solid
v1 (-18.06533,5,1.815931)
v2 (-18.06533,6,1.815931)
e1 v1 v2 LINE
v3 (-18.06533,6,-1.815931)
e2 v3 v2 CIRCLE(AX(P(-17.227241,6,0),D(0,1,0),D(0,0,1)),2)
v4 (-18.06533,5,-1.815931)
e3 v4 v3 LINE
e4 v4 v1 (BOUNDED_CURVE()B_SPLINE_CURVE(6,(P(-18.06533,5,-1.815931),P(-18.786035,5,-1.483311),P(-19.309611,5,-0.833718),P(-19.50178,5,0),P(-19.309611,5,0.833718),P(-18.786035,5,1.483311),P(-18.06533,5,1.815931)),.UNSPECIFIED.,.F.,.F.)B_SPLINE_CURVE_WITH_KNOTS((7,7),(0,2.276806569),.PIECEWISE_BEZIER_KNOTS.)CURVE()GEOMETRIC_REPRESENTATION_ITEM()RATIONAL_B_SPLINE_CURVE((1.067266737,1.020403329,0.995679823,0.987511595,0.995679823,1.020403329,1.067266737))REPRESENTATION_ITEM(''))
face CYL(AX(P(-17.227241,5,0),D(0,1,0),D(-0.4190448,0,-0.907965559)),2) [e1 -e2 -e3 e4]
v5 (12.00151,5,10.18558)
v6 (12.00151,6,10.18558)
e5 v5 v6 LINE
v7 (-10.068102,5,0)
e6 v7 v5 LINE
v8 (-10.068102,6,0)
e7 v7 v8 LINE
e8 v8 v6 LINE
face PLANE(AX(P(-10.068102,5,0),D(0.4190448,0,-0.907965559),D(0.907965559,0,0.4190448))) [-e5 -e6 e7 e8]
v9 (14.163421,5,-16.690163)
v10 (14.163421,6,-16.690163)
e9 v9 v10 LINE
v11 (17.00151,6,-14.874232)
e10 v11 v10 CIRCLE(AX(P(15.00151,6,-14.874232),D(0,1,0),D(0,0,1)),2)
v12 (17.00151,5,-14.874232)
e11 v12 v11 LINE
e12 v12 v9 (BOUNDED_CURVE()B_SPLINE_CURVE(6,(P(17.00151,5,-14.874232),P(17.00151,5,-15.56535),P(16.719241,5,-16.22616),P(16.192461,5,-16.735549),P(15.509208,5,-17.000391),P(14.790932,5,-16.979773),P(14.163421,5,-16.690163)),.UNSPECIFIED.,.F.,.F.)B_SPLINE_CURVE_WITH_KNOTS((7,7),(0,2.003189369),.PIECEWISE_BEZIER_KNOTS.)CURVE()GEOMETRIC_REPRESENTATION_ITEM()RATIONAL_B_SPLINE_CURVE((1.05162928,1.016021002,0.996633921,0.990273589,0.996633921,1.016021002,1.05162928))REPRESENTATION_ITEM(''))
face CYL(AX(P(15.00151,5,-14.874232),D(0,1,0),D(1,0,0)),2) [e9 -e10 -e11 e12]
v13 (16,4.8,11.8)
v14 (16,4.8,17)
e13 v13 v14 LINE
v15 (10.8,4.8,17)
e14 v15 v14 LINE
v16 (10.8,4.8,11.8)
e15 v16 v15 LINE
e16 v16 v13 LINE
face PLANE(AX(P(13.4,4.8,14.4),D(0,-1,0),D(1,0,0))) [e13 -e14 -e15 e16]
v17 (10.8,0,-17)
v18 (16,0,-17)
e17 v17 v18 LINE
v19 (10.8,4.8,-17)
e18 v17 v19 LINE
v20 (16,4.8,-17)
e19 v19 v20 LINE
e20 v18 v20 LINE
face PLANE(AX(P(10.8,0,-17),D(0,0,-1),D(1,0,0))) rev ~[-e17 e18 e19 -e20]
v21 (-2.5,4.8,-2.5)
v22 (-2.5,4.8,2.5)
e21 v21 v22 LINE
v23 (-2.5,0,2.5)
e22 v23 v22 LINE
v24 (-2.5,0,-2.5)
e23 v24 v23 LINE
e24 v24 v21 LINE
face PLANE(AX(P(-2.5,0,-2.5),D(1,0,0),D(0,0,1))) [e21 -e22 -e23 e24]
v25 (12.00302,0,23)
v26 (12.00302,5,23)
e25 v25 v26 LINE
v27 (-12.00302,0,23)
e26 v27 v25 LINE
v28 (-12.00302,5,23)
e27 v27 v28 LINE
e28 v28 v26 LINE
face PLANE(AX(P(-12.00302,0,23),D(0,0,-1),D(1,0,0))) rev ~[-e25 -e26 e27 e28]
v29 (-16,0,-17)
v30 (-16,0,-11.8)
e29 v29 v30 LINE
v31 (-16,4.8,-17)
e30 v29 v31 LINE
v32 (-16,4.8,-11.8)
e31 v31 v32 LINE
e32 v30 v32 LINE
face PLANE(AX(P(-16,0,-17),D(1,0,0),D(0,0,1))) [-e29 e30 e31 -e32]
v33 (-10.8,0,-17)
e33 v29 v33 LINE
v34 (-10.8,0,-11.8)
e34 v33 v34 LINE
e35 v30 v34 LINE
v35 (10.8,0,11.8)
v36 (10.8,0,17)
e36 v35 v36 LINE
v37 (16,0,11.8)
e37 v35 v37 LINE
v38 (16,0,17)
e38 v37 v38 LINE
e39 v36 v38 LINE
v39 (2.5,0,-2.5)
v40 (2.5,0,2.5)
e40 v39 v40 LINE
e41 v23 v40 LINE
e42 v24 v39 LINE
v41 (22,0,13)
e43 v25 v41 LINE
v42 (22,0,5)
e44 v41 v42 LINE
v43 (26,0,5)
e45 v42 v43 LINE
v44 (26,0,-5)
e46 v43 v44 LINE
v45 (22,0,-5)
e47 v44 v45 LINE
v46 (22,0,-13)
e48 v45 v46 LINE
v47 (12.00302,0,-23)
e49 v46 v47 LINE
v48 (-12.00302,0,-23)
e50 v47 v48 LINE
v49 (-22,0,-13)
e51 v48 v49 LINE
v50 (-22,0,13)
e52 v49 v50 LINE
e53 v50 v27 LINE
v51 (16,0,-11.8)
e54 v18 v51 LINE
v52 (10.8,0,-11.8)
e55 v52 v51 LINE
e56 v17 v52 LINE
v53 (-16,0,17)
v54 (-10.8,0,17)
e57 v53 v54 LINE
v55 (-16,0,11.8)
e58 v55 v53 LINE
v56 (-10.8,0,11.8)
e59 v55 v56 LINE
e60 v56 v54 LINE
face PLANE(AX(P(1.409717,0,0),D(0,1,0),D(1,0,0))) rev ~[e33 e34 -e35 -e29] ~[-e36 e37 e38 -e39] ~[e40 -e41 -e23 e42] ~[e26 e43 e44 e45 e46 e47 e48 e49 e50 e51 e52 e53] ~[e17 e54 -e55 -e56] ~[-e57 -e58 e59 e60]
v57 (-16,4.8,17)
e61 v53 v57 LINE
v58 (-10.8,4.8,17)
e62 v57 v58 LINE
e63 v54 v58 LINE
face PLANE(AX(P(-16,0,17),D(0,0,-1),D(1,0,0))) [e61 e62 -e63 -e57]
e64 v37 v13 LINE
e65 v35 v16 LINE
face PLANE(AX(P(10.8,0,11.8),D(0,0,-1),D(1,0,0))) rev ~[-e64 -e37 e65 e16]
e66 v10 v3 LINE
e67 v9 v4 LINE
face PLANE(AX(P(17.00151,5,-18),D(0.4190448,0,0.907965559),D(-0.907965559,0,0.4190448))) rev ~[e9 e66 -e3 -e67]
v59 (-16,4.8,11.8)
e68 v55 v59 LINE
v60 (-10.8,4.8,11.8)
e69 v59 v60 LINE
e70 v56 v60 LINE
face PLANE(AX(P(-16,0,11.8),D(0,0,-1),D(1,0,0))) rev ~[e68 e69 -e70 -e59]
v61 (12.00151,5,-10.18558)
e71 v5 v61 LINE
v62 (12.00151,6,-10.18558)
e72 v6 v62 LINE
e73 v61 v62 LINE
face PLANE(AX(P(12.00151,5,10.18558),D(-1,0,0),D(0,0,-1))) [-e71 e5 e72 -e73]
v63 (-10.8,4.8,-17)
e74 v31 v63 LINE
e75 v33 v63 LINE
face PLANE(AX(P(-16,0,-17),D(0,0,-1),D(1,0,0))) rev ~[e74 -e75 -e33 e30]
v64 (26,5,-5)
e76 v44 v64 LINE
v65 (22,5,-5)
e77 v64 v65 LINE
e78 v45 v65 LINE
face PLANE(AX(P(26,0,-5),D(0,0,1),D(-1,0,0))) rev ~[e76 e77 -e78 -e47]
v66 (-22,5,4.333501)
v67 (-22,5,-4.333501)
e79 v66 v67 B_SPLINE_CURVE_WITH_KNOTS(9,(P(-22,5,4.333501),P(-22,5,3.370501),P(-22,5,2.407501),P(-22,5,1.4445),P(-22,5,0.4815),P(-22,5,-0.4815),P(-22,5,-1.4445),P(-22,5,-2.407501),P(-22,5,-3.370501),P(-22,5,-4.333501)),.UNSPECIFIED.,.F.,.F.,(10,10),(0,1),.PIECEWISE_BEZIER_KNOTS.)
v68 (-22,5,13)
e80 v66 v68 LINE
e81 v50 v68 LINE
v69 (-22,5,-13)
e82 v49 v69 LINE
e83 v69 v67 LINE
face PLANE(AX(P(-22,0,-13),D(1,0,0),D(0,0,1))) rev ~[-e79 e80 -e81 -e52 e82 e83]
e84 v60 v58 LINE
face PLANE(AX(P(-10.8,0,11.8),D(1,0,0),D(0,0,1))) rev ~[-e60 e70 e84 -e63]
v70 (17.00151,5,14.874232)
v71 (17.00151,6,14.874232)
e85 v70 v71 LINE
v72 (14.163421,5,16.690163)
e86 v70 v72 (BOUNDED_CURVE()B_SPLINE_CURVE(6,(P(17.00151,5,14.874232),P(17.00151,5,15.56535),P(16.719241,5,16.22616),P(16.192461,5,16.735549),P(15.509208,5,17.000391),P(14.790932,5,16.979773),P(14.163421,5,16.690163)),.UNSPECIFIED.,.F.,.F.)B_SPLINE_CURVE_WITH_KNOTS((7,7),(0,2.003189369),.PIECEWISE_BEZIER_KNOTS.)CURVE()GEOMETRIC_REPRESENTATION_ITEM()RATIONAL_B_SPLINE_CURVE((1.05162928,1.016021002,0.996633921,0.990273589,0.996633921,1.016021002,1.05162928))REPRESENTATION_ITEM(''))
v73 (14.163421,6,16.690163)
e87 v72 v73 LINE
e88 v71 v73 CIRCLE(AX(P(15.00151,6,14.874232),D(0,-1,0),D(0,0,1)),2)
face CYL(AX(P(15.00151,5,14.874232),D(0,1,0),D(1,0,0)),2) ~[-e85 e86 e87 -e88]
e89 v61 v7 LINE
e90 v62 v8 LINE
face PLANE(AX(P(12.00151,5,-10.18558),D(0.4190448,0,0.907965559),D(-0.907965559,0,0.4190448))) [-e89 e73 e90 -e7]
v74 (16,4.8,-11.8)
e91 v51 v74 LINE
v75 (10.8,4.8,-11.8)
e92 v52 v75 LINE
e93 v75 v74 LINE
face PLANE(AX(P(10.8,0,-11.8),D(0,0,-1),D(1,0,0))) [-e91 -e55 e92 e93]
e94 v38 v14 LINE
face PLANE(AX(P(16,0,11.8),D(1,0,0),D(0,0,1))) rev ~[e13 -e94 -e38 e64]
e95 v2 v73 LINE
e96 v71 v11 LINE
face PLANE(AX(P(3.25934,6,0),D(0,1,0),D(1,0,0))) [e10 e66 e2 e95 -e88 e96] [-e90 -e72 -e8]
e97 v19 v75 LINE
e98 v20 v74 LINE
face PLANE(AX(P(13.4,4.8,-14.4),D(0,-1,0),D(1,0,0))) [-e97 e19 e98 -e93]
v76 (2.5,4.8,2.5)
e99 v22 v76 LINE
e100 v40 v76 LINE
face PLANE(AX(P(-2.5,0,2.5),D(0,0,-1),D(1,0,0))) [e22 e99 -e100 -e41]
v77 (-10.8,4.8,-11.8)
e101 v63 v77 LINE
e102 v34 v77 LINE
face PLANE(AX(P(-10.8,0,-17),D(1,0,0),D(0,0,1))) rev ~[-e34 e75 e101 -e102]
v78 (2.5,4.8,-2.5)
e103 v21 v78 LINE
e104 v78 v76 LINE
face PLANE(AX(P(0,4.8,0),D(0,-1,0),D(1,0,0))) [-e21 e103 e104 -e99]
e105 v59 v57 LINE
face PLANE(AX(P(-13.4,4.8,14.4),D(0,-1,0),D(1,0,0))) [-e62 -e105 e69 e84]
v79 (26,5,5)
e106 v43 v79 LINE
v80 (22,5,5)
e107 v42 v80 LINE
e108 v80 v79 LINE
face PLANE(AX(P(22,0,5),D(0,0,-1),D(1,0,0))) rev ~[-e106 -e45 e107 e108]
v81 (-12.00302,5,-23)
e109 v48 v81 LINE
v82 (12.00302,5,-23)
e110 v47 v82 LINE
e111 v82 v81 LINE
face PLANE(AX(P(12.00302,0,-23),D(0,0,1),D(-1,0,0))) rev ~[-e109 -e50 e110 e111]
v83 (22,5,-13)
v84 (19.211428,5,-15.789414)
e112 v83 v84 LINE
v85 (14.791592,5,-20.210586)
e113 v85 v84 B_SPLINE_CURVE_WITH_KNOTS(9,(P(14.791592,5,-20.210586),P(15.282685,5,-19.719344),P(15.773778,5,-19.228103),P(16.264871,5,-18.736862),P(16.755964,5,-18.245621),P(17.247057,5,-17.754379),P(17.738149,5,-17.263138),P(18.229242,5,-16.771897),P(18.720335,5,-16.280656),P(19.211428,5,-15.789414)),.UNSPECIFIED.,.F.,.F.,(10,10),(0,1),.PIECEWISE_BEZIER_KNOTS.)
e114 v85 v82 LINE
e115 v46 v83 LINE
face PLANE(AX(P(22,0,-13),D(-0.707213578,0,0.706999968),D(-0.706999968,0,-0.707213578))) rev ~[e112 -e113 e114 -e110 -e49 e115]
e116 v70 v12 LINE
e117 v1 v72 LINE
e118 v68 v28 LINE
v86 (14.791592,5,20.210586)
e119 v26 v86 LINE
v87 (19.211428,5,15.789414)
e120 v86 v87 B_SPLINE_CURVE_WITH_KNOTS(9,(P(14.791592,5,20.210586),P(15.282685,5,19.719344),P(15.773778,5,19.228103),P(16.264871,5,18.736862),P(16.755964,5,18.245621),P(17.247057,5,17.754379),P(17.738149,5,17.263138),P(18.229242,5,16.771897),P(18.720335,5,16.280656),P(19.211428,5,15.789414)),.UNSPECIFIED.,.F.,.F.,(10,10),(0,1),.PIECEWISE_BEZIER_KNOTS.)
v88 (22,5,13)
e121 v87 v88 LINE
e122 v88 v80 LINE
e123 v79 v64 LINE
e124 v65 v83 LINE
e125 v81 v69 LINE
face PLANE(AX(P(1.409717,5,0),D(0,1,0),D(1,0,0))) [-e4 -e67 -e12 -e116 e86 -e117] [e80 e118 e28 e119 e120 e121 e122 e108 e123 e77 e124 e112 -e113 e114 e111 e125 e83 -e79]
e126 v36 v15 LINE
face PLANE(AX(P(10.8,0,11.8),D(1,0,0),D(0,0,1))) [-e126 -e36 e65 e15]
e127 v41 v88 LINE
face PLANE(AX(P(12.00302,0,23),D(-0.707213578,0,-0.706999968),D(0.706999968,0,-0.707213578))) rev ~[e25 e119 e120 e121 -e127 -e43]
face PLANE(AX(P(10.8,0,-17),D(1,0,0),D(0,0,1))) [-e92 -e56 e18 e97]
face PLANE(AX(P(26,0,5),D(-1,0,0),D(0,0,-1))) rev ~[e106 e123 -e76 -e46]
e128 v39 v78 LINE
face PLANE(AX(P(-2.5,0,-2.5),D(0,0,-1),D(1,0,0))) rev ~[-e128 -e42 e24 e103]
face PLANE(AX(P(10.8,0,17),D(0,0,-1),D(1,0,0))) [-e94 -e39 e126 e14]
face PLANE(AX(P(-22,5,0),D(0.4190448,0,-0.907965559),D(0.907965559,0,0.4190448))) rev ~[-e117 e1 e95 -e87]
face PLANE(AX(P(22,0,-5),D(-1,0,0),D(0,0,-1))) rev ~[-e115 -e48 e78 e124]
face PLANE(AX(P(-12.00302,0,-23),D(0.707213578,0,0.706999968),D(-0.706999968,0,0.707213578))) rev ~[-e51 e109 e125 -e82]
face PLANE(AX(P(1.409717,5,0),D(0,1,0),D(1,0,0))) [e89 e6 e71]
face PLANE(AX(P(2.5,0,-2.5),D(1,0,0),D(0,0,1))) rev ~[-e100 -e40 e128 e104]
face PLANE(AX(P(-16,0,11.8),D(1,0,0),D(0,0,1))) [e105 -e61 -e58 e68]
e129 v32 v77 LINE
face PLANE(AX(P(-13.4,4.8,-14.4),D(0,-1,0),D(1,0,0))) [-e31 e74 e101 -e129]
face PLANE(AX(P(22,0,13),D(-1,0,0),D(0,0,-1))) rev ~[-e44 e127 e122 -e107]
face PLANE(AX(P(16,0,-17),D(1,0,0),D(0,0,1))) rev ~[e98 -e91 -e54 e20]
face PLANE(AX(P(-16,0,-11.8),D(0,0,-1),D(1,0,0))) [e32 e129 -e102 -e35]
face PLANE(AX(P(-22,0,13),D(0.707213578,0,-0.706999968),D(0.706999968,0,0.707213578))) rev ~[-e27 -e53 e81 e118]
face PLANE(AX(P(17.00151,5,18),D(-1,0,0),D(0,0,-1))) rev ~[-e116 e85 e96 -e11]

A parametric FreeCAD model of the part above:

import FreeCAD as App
import Part
import Sketcher


def edges_at(feature, points):
    """Names of the edges that pass closest to the given points."""
    edges = feature.Shape.Edges
    near = lambda p: min(range(len(edges)), key=lambda i: edges[i].distToShape(Part.Vertex(*p))[0])
    return sorted({f"Edge{near(p) + 1}" for p in points})

doc = App.newDocument("Part")
params = doc.addObject("Spreadsheet::Sheet", "Params")
for row, (alias, value) in enumerate([
    ("sketch1_width", "4 mm"),
    ("sketch1_height", "26 mm"),
    ("sketch1_height2", "8 mm"),
    ("sketch1_length", "14.14 mm"),
    ("pad1_length", "5 mm"),
    ("sketch2_height", "36 mm"),
    ("pad2_length", "1 mm"),
    ("sketch3_width", "5 mm"),
    ("sketch3_width2", "5.2 mm"),
    ("pocket1_length", "4.8 mm"),
    ("fillet_radius", "2 mm"),
], start=1):
    params.set(f"A{row}", alias)
    params.set(f"B{row}", "=" + value)
    params.setAlias(f"B{row}", alias)

body = doc.addObject("PartDesign::Body", "Body")

sketch1 = doc.addObject("Sketcher::SketchObject", "Sketch")
body.addObject(sketch1)
sketch1.AttachmentSupport = (doc.XZ_Plane, [""])
sketch1.MapMode = "FlatFace"
sketch1.addGeometry([
    Part.LineSegment(App.Vector(22, -13, 0), App.Vector(12, -23, 0)),
    Part.LineSegment(App.Vector(12, -23, 0), App.Vector(-12, -23, 0)),
    Part.LineSegment(App.Vector(-12, -23, 0), App.Vector(-22, -13, 0)),
    Part.LineSegment(App.Vector(-22, -13, 0), App.Vector(-22, 13, 0)),
    Part.LineSegment(App.Vector(-22, 13, 0), App.Vector(-12, 23, 0)),
    Part.LineSegment(App.Vector(-12, 23, 0), App.Vector(12, 23, 0)),
    Part.LineSegment(App.Vector(12, 23, 0), App.Vector(22, 13, 0)),
    Part.LineSegment(App.Vector(22, 13, 0), App.Vector(22, 5, 0)),
    Part.LineSegment(App.Vector(22, 5, 0), App.Vector(26, 5, 0)),
    Part.LineSegment(App.Vector(26, 5, 0), App.Vector(26, -5, 0)),
    Part.LineSegment(App.Vector(26, -5, 0), App.Vector(22, -5, 0)),
    Part.LineSegment(App.Vector(22, -5, 0), App.Vector(22, -13, 0)),
], False)
sketch1.addConstraint([
    Sketcher.Constraint("Coincident", 0, 2, 1, 1),
    Sketcher.Constraint("Coincident", 1, 2, 2, 1),
    Sketcher.Constraint("Coincident", 2, 2, 3, 1),
    Sketcher.Constraint("Coincident", 3, 2, 4, 1),
    Sketcher.Constraint("Coincident", 4, 2, 5, 1),
    Sketcher.Constraint("Coincident", 5, 2, 6, 1),
    Sketcher.Constraint("Coincident", 6, 2, 7, 1),
    Sketcher.Constraint("Coincident", 7, 2, 8, 1),
    Sketcher.Constraint("Coincident", 8, 2, 9, 1),
    Sketcher.Constraint("Coincident", 9, 2, 10, 1),
    Sketcher.Constraint("Coincident", 10, 2, 11, 1),
    Sketcher.Constraint("Coincident", 11, 2, 0, 1),
    Sketcher.Constraint("Horizontal", 1),
    Sketcher.Constraint("Vertical", 3),
    Sketcher.Constraint("Horizontal", 5),
    Sketcher.Constraint("Vertical", 7),
    Sketcher.Constraint("Horizontal", 8),
    Sketcher.Constraint("Vertical", 9),
    Sketcher.Constraint("Horizontal", 10),
    Sketcher.Constraint("Vertical", 11),
    Sketcher.Constraint("Symmetric", 0, 2, 4, 2, -1, 1),
    Sketcher.Constraint("Symmetric", 2, 2, 6, 2, -1, 1),
    Sketcher.Constraint("Symmetric", 3, 2, 11, 2, -1, 1),
    Sketcher.Constraint("Parallel", 2, 6),
    Sketcher.Constraint("Horizontal", 3, 2, 6, 2),
    Sketcher.Constraint("Vertical", 1, 2, 4, 2),
    Sketcher.Constraint("Equal", 7, 11),
    Sketcher.Constraint("DistanceX", 8, 1, 8, 2, 4.0),
    Sketcher.Constraint("DistanceY", 3, 1, 3, 2, 26.0),
    Sketcher.Constraint("DistanceY", 7, 2, 7, 1, 8.0),
    Sketcher.Constraint("DistanceY", 0, 2, -1, 1, 23.0),
    Sketcher.Constraint("DistanceX", 2, 2, -1, 1, 22.0),
    Sketcher.Constraint("Distance", 0, 14.14),
])
sketch1.setExpression("Constraints[27]", "Params.sketch1_width")
sketch1.setExpression("Constraints[28]", "Params.sketch1_height")
sketch1.setExpression("Constraints[29]", "Params.sketch1_height2")
sketch1.setExpression("Constraints[32]", "Params.sketch1_length")
pad1 = doc.addObject("PartDesign::Pad", "Pad")
body.addObject(pad1)
pad1.Profile = sketch1
pad1.setExpression("Length", "Params.pad1_length")
pad1.Reversed = True

sketch2 = doc.addObject("Sketcher::SketchObject", "Sketch001")
body.addObject(sketch2)
sketch2.AttachmentSupport = (doc.XZ_Plane, [""])
sketch2.MapMode = "FlatFace"
sketch2.AttachmentOffset = App.Placement(App.Vector(0, 0, -5), App.Rotation())
sketch2.addGeometry([
    Part.LineSegment(App.Vector(17, 18, 0), App.Vector(17, -18, 0)),
    Part.LineSegment(App.Vector(17, -18, 0), App.Vector(-22, 0, 0)),
    Part.LineSegment(App.Vector(-22, 0, 0), App.Vector(17, 18, 0)),
    Part.LineSegment(App.Vector(12, 10, 0), App.Vector(-10, 0, 0)),
    Part.LineSegment(App.Vector(-10, 0, 0), App.Vector(12, -10, 0)),
    Part.LineSegment(App.Vector(12, -10, 0), App.Vector(12, 10, 0)),
], False)
sketch2.addConstraint([
    Sketcher.Constraint("Coincident", 0, 2, 1, 1),
    Sketcher.Constraint("Coincident", 1, 2, 2, 1),
    Sketcher.Constraint("Coincident", 2, 2, 0, 1),
    Sketcher.Constraint("Coincident", 3, 2, 4, 1),
    Sketcher.Constraint("Coincident", 4, 2, 5, 1),
    Sketcher.Constraint("Coincident", 5, 2, 3, 1),
    Sketcher.Constraint("Vertical", 0),
    Sketcher.Constraint("Vertical", 5),
    Sketcher.Constraint("PointOnObject", 1, 2, -1),
    Sketcher.Constraint("PointOnObject", 3, 2, -1),
    Sketcher.Constraint("Parallel", 2, 3),
    Sketcher.Constraint("Parallel", 1, 4),
    Sketcher.Constraint("Equal", 1, 2),
    Sketcher.Constraint("DistanceY", 0, 2, 0, 1, 36.0),
    Sketcher.Constraint("DistanceX", 1, 2, -1, 1, 22.0),
    Sketcher.Constraint("DistanceX", 4, 2, 0, 2, 5.0),
    Sketcher.Constraint("DistanceY", 5, 1, 5, 2, 20.37116),
    Sketcher.Constraint("DistanceX", 3, 2, -1, 1, 10.068102),
])
sketch2.setExpression("Constraints[13]", "Params.sketch2_height")
pad2 = doc.addObject("PartDesign::Pad", "Pad001")
body.addObject(pad2)
pad2.Profile = sketch2
pad2.setExpression("Length", "Params.pad2_length")
pad2.Reversed = True

sketch3 = doc.addObject("Sketcher::SketchObject", "Sketch002")
body.addObject(sketch3)
sketch3.AttachmentSupport = (doc.XZ_Plane, [""])
sketch3.MapMode = "FlatFace"
sketch3.addGeometry([
    Part.LineSegment(App.Vector(-16, 17, 0), App.Vector(-16, 12, 0)),
    Part.LineSegment(App.Vector(-16, 12, 0), App.Vector(-11, 12, 0)),
    Part.LineSegment(App.Vector(-11, 12, 0), App.Vector(-11, 17, 0)),
    Part.LineSegment(App.Vector(-11, 17, 0), App.Vector(-16, 17, 0)),
    Part.LineSegment(App.Vector(-16, -12, 0), App.Vector(-16, -17, 0)),
    Part.LineSegment(App.Vector(-16, -17, 0), App.Vector(-11, -17, 0)),
    Part.LineSegment(App.Vector(-11, -17, 0), App.Vector(-11, -12, 0)),
    Part.LineSegment(App.Vector(-11, -12, 0), App.Vector(-16, -12, 0)),
    Part.LineSegment(App.Vector(11, -12, 0), App.Vector(11, -17, 0)),
    Part.LineSegment(App.Vector(11, -17, 0), App.Vector(16, -17, 0)),
    Part.LineSegment(App.Vector(16, -17, 0), App.Vector(16, -12, 0)),
    Part.LineSegment(App.Vector(16, -12, 0), App.Vector(11, -12, 0)),
    Part.LineSegment(App.Vector(11, 17, 0), App.Vector(11, 12, 0)),
    Part.LineSegment(App.Vector(11, 12, 0), App.Vector(16, 12, 0)),
    Part.LineSegment(App.Vector(16, 12, 0), App.Vector(16, 17, 0)),
    Part.LineSegment(App.Vector(16, 17, 0), App.Vector(11, 17, 0)),
    Part.LineSegment(App.Vector(-2, 2, 0), App.Vector(-2, -2, 0)),
    Part.LineSegment(App.Vector(-2, -2, 0), App.Vector(2, -2, 0)),
    Part.LineSegment(App.Vector(2, -2, 0), App.Vector(2, 2, 0)),
    Part.LineSegment(App.Vector(2, 2, 0), App.Vector(-2, 2, 0)),
], False)
sketch3.addConstraint([
    Sketcher.Constraint("Coincident", 0, 2, 1, 1),
    Sketcher.Constraint("Coincident", 1, 2, 2, 1),
    Sketcher.Constraint("Coincident", 2, 2, 3, 1),
    Sketcher.Constraint("Coincident", 3, 2, 0, 1),
    Sketcher.Constraint("Coincident", 4, 2, 5, 1),
    Sketcher.Constraint("Coincident", 5, 2, 6, 1),
    Sketcher.Constraint("Coincident", 6, 2, 7, 1),
    Sketcher.Constraint("Coincident", 7, 2, 4, 1),
    Sketcher.Constraint("Coincident", 8, 2, 9, 1),
    Sketcher.Constraint("Coincident", 9, 2, 10, 1),
    Sketcher.Constraint("Coincident", 10, 2, 11, 1),
    Sketcher.Constraint("Coincident", 11, 2, 8, 1),
    Sketcher.Constraint("Coincident", 12, 2, 13, 1),
    Sketcher.Constraint("Coincident", 13, 2, 14, 1),
    Sketcher.Constraint("Coincident", 14, 2, 15, 1),
    Sketcher.Constraint("Coincident", 15, 2, 12, 1),
    Sketcher.Constraint("Coincident", 16, 2, 17, 1),
    Sketcher.Constraint("Coincident", 17, 2, 18, 1),
    Sketcher.Constraint("Coincident", 18, 2, 19, 1),
    Sketcher.Constraint("Coincident", 19, 2, 16, 1),
    Sketcher.Constraint("Vertical", 0),
    Sketcher.Constraint("Horizontal", 1),
    Sketcher.Constraint("Vertical", 2),
    Sketcher.Constraint("Horizontal", 3),
    Sketcher.Constraint("Vertical", 4),
    Sketcher.Constraint("Horizontal", 5),
    Sketcher.Constraint("Vertical", 6),
    Sketcher.Constraint("Horizontal", 7),
    Sketcher.Constraint("Vertical", 8),
    Sketcher.Constraint("Horizontal", 9),
    Sketcher.Constraint("Vertical", 10),
    Sketcher.Constraint("Horizontal", 11),
    Sketcher.Constraint("Vertical", 12),
    Sketcher.Constraint("Horizontal", 13),
    Sketcher.Constraint("Vertical", 14),
    Sketcher.Constraint("Horizontal", 15),
    Sketcher.Constraint("Vertical", 16),
    Sketcher.Constraint("Horizontal", 17),
    Sketcher.Constraint("Vertical", 18),
    Sketcher.Constraint("Horizontal", 19),
    Sketcher.Constraint("Symmetric", 2, 2, 8, 2, -1, 1),
    Sketcher.Constraint("Symmetric", 0, 2, 10, 2, -1, 1),
    Sketcher.Constraint("Symmetric", 6, 2, 12, 2, -1, 1),
    Sketcher.Constraint("Symmetric", 4, 2, 14, 2, -1, 1),
    Sketcher.Constraint("Symmetric", 16, 2, 18, 2, -1, 1),
    Sketcher.Constraint("Symmetric", 5, 2, 8, 2, -2),
    Sketcher.Constraint("Symmetric", 7, 2, 10, 2, -2),
    Sketcher.Constraint("Equal", 15, 0),
    Sketcher.Constraint("Equal", 19, 16),
    Sketcher.Constraint("DistanceX", 17, 1, 17, 2, 5.0),
    Sketcher.Constraint("DistanceX", 1, 1, 1, 2, 5.2),
    Sketcher.Constraint("DistanceX", 0, 2, -1, 1, 16.0),
    Sketcher.Constraint("DistanceY", -1, 1, 2, 2, 17.0),
])
sketch3.setExpression("Constraints[49]", "Params.sketch3_width")
sketch3.setExpression("Constraints[50]", "Params.sketch3_width2")
pocket1 = doc.addObject("PartDesign::Pocket", "Pocket")
body.addObject(pocket1)
pocket1.Profile = sketch3
pocket1.setExpression("Length", "Params.pocket1_length")
doc.recompute()

fillet = doc.addObject("PartDesign::Fillet", "Fillet")
body.addObject(fillet)
fillet.Base = (pocket1, edges_at(pocket1, [(-22, 5.5, 0), (17.002, 5.5, 18), (17.002, 5.5, -18)]))
fillet.setExpression("Radius", "Params.fillet_radius")

doc.recompute()
